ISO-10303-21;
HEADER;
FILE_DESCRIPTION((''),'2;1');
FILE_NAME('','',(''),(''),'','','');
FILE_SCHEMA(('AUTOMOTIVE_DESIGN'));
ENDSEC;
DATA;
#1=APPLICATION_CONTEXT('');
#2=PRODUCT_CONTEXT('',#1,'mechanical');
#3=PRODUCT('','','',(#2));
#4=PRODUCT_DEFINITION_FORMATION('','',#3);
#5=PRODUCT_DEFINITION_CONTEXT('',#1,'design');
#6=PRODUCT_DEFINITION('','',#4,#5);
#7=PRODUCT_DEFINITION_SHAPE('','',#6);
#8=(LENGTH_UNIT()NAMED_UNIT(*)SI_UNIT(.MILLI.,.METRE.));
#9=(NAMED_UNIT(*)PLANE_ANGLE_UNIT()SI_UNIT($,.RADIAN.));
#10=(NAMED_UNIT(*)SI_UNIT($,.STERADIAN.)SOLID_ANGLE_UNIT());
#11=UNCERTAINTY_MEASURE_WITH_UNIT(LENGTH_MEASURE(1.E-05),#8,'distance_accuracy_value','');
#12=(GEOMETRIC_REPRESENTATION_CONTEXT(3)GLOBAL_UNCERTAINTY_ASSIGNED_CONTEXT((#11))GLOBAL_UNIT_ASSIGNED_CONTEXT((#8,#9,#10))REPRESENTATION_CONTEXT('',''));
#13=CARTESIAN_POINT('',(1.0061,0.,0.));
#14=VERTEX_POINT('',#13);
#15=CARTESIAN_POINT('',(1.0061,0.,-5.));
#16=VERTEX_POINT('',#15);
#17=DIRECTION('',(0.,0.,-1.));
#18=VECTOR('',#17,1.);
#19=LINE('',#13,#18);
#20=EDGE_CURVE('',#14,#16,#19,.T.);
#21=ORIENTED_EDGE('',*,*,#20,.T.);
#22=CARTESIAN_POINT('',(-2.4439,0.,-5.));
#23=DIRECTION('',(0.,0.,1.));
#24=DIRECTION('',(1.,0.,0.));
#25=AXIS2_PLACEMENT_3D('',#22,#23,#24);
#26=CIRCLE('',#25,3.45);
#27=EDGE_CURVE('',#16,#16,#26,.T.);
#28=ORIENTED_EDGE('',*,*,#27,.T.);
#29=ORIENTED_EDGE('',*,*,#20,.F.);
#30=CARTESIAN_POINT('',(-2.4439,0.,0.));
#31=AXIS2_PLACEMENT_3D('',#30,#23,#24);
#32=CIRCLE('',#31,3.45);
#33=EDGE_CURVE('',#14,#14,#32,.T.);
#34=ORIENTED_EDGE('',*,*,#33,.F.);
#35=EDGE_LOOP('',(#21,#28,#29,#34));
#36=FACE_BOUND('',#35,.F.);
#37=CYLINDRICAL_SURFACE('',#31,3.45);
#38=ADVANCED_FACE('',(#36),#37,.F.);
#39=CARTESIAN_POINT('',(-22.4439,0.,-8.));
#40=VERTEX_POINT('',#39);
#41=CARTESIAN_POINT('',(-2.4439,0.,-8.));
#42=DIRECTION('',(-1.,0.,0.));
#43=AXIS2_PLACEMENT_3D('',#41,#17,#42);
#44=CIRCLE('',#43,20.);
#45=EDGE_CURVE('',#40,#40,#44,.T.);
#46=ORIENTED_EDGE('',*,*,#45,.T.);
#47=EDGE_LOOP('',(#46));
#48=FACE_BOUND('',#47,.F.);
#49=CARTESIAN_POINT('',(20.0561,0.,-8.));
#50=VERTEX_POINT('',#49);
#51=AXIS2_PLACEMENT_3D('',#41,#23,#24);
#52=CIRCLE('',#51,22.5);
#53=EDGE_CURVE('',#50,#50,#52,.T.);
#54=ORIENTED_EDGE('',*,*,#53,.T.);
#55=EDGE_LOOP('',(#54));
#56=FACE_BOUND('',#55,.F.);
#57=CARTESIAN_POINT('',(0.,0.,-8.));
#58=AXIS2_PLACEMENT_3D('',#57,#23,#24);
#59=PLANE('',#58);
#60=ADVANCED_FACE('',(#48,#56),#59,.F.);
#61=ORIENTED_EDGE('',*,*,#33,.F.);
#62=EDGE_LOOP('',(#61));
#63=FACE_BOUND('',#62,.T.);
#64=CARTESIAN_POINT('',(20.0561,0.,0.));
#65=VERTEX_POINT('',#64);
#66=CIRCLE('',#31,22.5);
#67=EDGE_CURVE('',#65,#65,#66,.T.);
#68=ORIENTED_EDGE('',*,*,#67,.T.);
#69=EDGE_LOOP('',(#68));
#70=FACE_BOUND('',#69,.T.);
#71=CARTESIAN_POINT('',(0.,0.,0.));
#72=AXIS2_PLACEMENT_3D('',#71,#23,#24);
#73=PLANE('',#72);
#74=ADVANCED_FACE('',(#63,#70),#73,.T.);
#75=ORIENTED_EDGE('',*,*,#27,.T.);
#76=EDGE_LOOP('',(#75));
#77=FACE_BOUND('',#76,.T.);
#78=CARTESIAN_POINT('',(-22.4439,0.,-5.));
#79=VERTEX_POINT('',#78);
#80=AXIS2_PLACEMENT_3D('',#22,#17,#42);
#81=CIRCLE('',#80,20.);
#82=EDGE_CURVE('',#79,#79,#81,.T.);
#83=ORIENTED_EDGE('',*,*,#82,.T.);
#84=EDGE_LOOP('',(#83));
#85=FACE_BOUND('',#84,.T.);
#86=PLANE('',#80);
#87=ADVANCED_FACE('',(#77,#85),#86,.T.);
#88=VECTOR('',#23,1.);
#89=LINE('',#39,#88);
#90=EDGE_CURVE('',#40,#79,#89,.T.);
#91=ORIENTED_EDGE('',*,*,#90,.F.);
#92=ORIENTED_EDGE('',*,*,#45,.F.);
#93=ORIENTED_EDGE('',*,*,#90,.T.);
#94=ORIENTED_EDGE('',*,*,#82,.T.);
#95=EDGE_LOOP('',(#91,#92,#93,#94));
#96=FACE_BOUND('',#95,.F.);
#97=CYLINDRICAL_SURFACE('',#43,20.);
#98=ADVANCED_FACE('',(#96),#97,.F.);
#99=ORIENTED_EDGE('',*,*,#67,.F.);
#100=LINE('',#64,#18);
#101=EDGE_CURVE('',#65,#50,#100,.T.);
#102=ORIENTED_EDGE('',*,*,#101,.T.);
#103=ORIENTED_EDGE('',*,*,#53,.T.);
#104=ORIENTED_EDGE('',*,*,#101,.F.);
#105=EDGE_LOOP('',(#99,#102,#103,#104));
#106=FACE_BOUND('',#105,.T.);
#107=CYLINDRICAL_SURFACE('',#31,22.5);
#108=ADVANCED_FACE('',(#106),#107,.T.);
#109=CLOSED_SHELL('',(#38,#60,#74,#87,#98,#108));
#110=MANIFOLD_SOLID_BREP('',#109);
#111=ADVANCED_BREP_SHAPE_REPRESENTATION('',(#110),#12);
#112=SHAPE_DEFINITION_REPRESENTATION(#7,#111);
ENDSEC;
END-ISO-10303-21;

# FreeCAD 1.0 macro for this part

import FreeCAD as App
import Part
import Sketcher

V = App.Vector
Q = App.Units.Quantity

doc = App.newDocument("Part")
body = doc.addObject("PartDesign::Body", "Body")

sketch1 = body.newObject("Sketcher::SketchObject", "Sketch")
sketch1.AttachmentSupport = (doc.getObject("XY_Plane"), [""])
sketch1.MapMode = "FlatFace"
sketch1.addGeometry([
    Part.Circle(V(-2.4439, 0, 0), V(0, 0, 1), 22.5),
    Part.Circle(V(-2.4439, 0, 0), V(0, 0, 1), 3.45),
], False)
sketch1.addConstraint([
    Sketcher.Constraint("Coincident", 1, 3, 0, 3),
    Sketcher.Constraint("PointOnObject", 0, 3, -1),
    Sketcher.Constraint("Diameter", 0, Q("45 mm")),
    Sketcher.Constraint("Diameter", 1, Q("6.9 mm")),
    Sketcher.Constraint("DistanceX", 0, 3, -1, 1, Q("2.444 mm")),
])
pad1 = body.newObject("PartDesign::Pad", "Pad")
pad1.Profile = sketch1
pad1.Length = 8
pad1.Reversed = True

sketch2 = body.newObject("Sketcher::SketchObject", "Sketch001")
sketch2.AttachmentSupport = (doc.getObject("XY_Plane"), [""])
sketch2.MapMode = "FlatFace"
sketch2.AttachmentOffset = App.Placement(V(0, 0, -8), App.Rotation())
sketch2.addGeometry(Part.Circle(V(-2.4439, 0, 0), V(0, 0, 1), 20), False)
sketch2.addConstraint([
    Sketcher.Constraint("PointOnObject", 0, 3, -1),
    Sketcher.Constraint("Diameter", 0, Q("40 mm")),
    Sketcher.Constraint("DistanceX", 0, 3, -1, 1, Q("2.444 mm")),
])
pocket1 = body.newObject("PartDesign::Pocket", "Pocket")
pocket1.Profile = sketch2
pocket1.Length = 3
pocket1.Reversed = True

doc.recompute()
